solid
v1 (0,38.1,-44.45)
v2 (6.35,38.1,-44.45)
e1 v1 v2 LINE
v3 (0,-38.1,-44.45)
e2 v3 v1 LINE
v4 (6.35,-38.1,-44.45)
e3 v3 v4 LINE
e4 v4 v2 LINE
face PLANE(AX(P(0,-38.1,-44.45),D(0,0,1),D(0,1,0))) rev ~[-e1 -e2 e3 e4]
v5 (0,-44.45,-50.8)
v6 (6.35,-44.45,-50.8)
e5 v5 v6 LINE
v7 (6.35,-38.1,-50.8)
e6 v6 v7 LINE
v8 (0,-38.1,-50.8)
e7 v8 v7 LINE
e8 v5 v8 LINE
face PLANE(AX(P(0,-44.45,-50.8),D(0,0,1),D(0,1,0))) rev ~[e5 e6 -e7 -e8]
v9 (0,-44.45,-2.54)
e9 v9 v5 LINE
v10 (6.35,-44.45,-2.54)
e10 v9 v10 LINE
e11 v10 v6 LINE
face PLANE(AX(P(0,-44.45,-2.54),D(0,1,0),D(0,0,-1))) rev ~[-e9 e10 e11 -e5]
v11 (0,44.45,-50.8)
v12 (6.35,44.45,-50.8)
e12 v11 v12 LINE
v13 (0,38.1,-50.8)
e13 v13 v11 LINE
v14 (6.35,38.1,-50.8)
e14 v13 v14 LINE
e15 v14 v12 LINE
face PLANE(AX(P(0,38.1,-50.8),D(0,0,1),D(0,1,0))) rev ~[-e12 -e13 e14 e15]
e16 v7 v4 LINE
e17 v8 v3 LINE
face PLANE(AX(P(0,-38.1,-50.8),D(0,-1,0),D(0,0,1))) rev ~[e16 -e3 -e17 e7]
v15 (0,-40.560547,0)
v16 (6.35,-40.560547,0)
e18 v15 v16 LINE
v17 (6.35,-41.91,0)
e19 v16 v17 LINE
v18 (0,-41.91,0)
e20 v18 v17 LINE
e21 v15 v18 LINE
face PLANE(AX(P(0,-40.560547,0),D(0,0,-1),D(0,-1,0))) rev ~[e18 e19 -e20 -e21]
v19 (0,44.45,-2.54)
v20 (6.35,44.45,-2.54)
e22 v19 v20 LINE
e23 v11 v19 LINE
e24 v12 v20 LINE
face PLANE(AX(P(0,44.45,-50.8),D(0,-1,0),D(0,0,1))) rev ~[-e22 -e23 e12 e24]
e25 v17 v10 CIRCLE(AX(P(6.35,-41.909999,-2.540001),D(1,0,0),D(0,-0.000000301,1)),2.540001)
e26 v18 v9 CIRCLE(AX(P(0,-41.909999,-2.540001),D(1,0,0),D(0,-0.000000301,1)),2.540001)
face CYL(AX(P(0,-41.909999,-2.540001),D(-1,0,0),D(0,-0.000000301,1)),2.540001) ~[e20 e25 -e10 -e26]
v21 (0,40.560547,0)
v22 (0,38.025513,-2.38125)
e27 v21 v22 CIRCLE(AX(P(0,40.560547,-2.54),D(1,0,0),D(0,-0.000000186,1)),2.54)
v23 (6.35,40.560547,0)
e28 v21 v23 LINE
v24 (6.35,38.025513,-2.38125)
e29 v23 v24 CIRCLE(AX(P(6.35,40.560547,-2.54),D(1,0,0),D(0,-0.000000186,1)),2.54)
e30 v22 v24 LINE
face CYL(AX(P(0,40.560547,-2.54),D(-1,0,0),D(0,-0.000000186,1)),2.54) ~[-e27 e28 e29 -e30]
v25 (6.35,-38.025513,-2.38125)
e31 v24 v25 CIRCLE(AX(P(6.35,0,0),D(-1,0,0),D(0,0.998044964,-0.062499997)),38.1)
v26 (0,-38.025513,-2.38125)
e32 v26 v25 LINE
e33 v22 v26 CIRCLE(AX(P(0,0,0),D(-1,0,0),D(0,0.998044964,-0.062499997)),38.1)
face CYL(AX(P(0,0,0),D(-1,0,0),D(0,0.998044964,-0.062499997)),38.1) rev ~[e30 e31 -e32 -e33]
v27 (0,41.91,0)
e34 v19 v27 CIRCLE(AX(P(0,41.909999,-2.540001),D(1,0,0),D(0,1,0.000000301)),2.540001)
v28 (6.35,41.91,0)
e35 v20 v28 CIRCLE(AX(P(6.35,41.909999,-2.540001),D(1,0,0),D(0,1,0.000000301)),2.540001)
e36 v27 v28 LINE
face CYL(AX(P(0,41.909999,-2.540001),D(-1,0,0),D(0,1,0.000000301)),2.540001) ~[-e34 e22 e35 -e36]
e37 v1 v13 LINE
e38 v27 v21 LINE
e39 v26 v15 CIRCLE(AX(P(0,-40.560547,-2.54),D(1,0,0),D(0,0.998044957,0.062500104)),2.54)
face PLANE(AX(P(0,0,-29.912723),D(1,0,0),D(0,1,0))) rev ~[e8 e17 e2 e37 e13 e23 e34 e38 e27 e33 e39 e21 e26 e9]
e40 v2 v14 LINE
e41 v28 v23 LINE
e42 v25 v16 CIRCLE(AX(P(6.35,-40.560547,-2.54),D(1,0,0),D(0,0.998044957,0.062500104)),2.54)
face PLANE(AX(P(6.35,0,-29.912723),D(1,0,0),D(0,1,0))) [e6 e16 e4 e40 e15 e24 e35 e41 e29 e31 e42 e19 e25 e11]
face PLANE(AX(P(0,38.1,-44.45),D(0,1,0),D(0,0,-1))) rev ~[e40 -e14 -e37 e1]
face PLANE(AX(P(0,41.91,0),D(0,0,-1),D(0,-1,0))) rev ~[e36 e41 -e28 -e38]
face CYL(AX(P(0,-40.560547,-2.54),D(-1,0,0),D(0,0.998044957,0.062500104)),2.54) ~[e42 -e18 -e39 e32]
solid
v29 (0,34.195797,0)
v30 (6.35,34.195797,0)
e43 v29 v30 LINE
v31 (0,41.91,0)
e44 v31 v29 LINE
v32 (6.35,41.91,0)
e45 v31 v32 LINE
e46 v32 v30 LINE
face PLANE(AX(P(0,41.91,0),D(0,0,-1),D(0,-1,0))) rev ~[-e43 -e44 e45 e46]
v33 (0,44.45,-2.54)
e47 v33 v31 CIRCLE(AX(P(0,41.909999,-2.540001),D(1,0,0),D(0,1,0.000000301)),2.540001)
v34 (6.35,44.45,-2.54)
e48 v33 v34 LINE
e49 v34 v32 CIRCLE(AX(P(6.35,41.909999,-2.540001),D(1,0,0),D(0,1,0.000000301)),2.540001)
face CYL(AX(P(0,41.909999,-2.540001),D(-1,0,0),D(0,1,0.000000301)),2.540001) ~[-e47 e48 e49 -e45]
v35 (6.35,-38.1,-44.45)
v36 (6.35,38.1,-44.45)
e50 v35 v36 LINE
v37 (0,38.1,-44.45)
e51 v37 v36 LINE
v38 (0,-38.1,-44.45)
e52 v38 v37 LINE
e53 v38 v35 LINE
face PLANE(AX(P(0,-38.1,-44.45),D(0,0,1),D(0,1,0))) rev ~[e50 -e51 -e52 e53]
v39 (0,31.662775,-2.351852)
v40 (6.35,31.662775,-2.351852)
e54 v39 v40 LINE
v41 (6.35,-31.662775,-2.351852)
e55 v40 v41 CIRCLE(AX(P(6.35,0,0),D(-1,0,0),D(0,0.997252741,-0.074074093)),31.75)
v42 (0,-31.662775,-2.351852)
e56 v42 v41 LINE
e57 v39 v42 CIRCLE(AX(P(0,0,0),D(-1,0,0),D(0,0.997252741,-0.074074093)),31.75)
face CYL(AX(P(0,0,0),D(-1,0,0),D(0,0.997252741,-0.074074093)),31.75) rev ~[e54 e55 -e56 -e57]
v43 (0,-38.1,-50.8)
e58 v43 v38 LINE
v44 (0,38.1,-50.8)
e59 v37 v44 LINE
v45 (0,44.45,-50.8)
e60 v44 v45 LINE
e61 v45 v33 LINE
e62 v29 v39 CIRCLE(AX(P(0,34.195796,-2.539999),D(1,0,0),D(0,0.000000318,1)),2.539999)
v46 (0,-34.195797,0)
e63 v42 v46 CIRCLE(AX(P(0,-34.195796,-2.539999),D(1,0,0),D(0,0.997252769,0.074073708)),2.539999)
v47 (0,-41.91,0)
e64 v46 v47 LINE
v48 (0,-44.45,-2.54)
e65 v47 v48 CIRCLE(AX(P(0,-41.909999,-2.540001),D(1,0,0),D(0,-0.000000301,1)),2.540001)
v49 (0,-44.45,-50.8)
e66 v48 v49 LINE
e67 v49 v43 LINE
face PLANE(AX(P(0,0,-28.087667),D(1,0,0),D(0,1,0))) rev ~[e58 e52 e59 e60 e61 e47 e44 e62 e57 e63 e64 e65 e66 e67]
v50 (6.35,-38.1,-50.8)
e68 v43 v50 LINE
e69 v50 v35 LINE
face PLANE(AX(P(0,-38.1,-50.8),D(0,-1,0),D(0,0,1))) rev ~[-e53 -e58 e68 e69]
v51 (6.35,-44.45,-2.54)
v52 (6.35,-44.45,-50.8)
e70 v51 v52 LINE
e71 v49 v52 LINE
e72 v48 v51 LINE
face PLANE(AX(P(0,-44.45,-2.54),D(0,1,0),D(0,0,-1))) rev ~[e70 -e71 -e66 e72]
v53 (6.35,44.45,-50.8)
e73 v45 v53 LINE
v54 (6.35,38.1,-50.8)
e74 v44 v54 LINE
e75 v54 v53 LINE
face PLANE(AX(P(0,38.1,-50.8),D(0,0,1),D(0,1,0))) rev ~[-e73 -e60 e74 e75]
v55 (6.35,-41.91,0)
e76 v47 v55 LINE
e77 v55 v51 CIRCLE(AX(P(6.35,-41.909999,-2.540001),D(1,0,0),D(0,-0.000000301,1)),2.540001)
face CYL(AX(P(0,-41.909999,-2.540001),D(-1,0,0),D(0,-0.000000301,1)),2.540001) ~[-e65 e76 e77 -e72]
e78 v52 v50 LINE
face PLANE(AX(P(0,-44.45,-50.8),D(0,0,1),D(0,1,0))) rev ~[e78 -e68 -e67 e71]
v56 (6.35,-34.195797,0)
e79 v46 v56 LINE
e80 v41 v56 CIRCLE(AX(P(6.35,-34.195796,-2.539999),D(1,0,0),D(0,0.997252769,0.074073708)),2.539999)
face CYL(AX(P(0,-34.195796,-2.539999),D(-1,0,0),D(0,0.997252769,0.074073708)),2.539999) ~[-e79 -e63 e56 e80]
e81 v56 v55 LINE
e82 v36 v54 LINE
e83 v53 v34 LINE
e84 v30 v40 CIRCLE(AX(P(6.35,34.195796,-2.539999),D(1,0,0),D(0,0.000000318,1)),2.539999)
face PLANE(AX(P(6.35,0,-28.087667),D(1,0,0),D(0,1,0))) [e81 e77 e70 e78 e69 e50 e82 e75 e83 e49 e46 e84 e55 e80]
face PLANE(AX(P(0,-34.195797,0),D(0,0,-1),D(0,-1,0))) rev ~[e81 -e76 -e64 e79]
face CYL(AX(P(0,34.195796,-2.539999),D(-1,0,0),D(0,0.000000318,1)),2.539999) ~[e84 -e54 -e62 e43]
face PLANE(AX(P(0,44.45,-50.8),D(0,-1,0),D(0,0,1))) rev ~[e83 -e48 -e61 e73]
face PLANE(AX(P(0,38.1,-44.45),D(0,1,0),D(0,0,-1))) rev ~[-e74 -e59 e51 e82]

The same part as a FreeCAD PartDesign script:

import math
import FreeCAD as App
import Part
import Sketcher
Q = App.Units.Quantity

doc = App.newDocument("Part")
params = doc.addObject("Spreadsheet::Sheet", "Params")
for row, (alias, value) in enumerate([
    ("sketch1_radius", "0.1 in"),
    ("sketch1_radius2", "1.25 in"),
    ("sketch1_width", "0.25 in"),
    ("pad1_length", "0.25 in"),
    ("sketch2_radius", "0.1 in"),
    ("sketch2_width", "3 in"),
    ("sketch2_radius2", "1.25 in"),
    ("sketch2_height", "1.9 in"),
    ("sketch2_width2", "0.25 in"),
    ("pad2_length", "0.25 in"),
    ("sketch3_radius", "0.1 in"),
    ("sketch3_radius2", "1.5 in"),
    ("sketch3_width", "3 in"),
    ("sketch3_height", "1.9 in"),
    ("sketch3_width2", "0.25 in"),
    ("pad3_length", "0.25 in"),
], start=1):
    params.set(f"A{row}", alias)
    params.set(f"B{row}", "=" + value)
    params.setAlias(f"B{row}", alias)

body = doc.addObject("PartDesign::Body", "Body")

sketch1 = doc.addObject("Sketcher::SketchObject", "Sketch")
body.addObject(sketch1)
sketch1.AttachmentSupport = (doc.YZ_Plane, [""])
sketch1.MapMode = "FlatFace"
sketch1.addGeometry(Part.LineSegment(App.Vector(-34.1958, 0, 0), App.Vector(-41.91, 0, 0)), False)
sketch1.addGeometry(Part.ArcOfCircle(Part.Circle(App.Vector(-41.91, -2.54, 0), App.Vector(0, 0, 1), 2.54), math.radians(90), math.radians(180)), False)
sketch1.addGeometry(Part.LineSegment(App.Vector(-44.45, -2.54, 0), App.Vector(-44.45, -44.45, 0)), False)
sketch1.addGeometry(Part.LineSegment(App.Vector(-44.45, -44.45, 0), App.Vector(-44.4473, -44.45, 0)), False)
sketch1.addGeometry(Part.LineSegment(App.Vector(-44.4473, -44.45, 0), App.Vector(-44.4473, -50.8, 0)), False)
sketch1.addGeometry(Part.LineSegment(App.Vector(-44.4473, -50.8, 0), App.Vector(-38.0973, -50.8, 0)), False)
sketch1.addGeometry(Part.LineSegment(App.Vector(-38.0973, -50.8, 0), App.Vector(-38.0973, -44.45, 0)), False)
sketch1.addGeometry(Part.LineSegment(App.Vector(-38.0973, -44.45, 0), App.Vector(38.0862, -44.45, 0)), False)
sketch1.addGeometry(Part.LineSegment(App.Vector(38.0862, -44.45, 0), App.Vector(38.0862, -50.7773, 0)), False)
sketch1.addGeometry(Part.LineSegment(App.Vector(38.0862, -50.7773, 0), App.Vector(44.4362, -50.7773, 0)), False)
sketch1.addGeometry(Part.LineSegment(App.Vector(44.4362, -50.7773, 0), App.Vector(44.4362, -44.45, 0)), False)
sketch1.addGeometry(Part.LineSegment(App.Vector(44.4362, -44.45, 0), App.Vector(44.45, -44.45, 0)), False)
sketch1.addGeometry(Part.LineSegment(App.Vector(44.45, -44.45, 0), App.Vector(44.45, -2.54, 0)), False)
sketch1.addGeometry(Part.ArcOfCircle(Part.Circle(App.Vector(41.91, -2.54, 0), App.Vector(0, 0, 1), 2.54), math.radians(0), math.radians(90)), False)
sketch1.addGeometry(Part.LineSegment(App.Vector(41.91, 0, 0), App.Vector(34.1958, 0, 0)), False)
sketch1.addGeometry(Part.ArcOfCircle(Part.Circle(App.Vector(34.1958, -2.54, 0), App.Vector(0, 0, 1), 2.54), math.radians(90), math.radians(176)), False)
sketch1.addGeometry(Part.ArcOfCircle(Part.Circle(App.Vector(0, 0, 0), App.Vector(0, 0, 1), 31.75), math.radians(-176), math.radians(-4)), False)
sketch1.addGeometry(Part.ArcOfCircle(Part.Circle(App.Vector(-34.1958, -2.54, 0), App.Vector(0, 0, 1), 2.54), math.radians(4), math.radians(90)), False)
sketch1.addConstraint(Sketcher.Constraint("Tangent", 0, 2, 1, 1))
sketch1.addConstraint(Sketcher.Constraint("Tangent", 1, 2, 2, 1))
sketch1.addConstraint(Sketcher.Constraint("Coincident", 2, 2, 3, 1))
sketch1.addConstraint(Sketcher.Constraint("Coincident", 3, 2, 4, 1))
sketch1.addConstraint(Sketcher.Constraint("Coincident", 4, 2, 5, 1))
sketch1.addConstraint(Sketcher.Constraint("Coincident", 5, 2, 6, 1))
sketch1.addConstraint(Sketcher.Constraint("Coincident", 6, 2, 7, 1))
sketch1.addConstraint(Sketcher.Constraint("Coincident", 7, 2, 8, 1))
sketch1.addConstraint(Sketcher.Constraint("Coincident", 8, 2, 9, 1))
sketch1.addConstraint(Sketcher.Constraint("Coincident", 9, 2, 10, 1))
sketch1.addConstraint(Sketcher.Constraint("Coincident", 10, 2, 11, 1))
sketch1.addConstraint(Sketcher.Constraint("Coincident", 11, 2, 12, 1))
sketch1.addConstraint(Sketcher.Constraint("Tangent", 12, 2, 13, 1))
sketch1.addConstraint(Sketcher.Constraint("Tangent", 13, 2, 14, 1))
sketch1.addConstraint(Sketcher.Constraint("Tangent", 14, 2, 15, 1))
sketch1.addConstraint(Sketcher.Constraint("Tangent", 15, 2, 16, 2))
sketch1.addConstraint(Sketcher.Constraint("Tangent", 16, 1, 17, 1))
sketch1.addConstraint(Sketcher.Constraint("Tangent", 17, 2, 0, 1))
sketch1.addConstraint(Sketcher.Constraint("Horizontal", 0))
sketch1.addConstraint(Sketcher.Constraint("Vertical", 2))
sketch1.addConstraint(Sketcher.Constraint("Horizontal", 3))
sketch1.addConstraint(Sketcher.Constraint("Vertical", 4))
sketch1.addConstraint(Sketcher.Constraint("Horizontal", 5))
sketch1.addConstraint(Sketcher.Constraint("Vertical", 6))
sketch1.addConstraint(Sketcher.Constraint("Horizontal", 7))
sketch1.addConstraint(Sketcher.Constraint("Vertical", 8))
sketch1.addConstraint(Sketcher.Constraint("Horizontal", 9))
sketch1.addConstraint(Sketcher.Constraint("Vertical", 10))
sketch1.addConstraint(Sketcher.Constraint("Horizontal", 11))
sketch1.addConstraint(Sketcher.Constraint("Vertical", 12))
sketch1.addConstraint(Sketcher.Constraint("Horizontal", 14))
sketch1.addConstraint(Sketcher.Constraint("Coincident", 16, 3, -1, 1))
sketch1.addConstraint(Sketcher.Constraint("Equal", 1, 13))
sketch1.addConstraint(Sketcher.Constraint("Equal", 13, 15))
sketch1.addConstraint(Sketcher.Constraint("Equal", 15, 17))
sketch1.addConstraint(Sketcher.Constraint("Symmetric", 0, 2, 13, 2, -1, 1))
sketch1.addConstraint(Sketcher.Constraint("PointOnObject", 0, 2, -1))
sketch1.addConstraint(Sketcher.Constraint("Horizontal", 3, 2, 6, 2))
sketch1.addConstraint(Sketcher.Constraint("Horizontal", 7, 2, 10, 2))
sketch1.addConstraint(Sketcher.Constraint("Equal", 5, 9))
sketch1.addConstraint(Sketcher.Constraint("Equal", 9, 4))
sketch1.addConstraint(Sketcher.Constraint("Radius", 1, Q("0.1 in")))
sketch1.addConstraint(Sketcher.Constraint("Radius", 16, Q("1.25 in")))
sketch1.addConstraint(Sketcher.Constraint("DistanceY", 4, 2, -1, 1, Q("2 in")))
sketch1.addConstraint(Sketcher.Constraint("DistanceX", 5, 1, 5, 2, Q("0.25 in")))
sketch1.addConstraint(Sketcher.Constraint("DistanceX", 1, 3, 13, 3, Q("3.2999999 in")))
sketch1.addConstraint(Sketcher.Constraint("DistanceX", 3, 1, 3, 2, Q("0.002699 mm")))
sketch1.addConstraint(Sketcher.Constraint("DistanceY", 8, 2, 8, 1, Q("6.327279 mm")))
sketch1.addConstraint(Sketcher.Constraint("DistanceX", 7, 1, 7, 2, Q("76.183455 mm")))
sketch1.setExpression("Constraints[41]", "Params.sketch1_radius")
sketch1.setExpression("Constraints[42]", "Params.sketch1_radius2")
sketch1.setExpression("Constraints[44]", "Params.sketch1_width")
pad1 = doc.addObject("PartDesign::Pad", "Pad")
body.addObject(pad1)
pad1.Profile = sketch1
pad1.setExpression("Length", "Params.pad1_length")
body2 = doc.addObject("PartDesign::Body", "Body001")

sketch2 = doc.addObject("Sketcher::SketchObject", "Sketch001")
body2.addObject(sketch2)
sketch2.AttachmentSupport = (doc.getObject("YZ_Plane001"), [""])
sketch2.MapMode = "FlatFace"
sketch2.addGeometry(Part.LineSegment(App.Vector(-34.2, 0, 0), App.Vector(-41.9, 0, 0)), False)
sketch2.addGeometry(Part.ArcOfCircle(Part.Circle(App.Vector(-41.9, -2.5, 0), App.Vector(0, 0, 1), 2.5), math.radians(90), math.radians(180)), False)
sketch2.addGeometry(Part.LineSegment(App.Vector(-44.5, -2.5, 0), App.Vector(-44.5, -50.8, 0)), False)
sketch2.addGeometry(Part.LineSegment(App.Vector(-44.5, -50.8, 0), App.Vector(-38.1, -50.8, 0)), False)
sketch2.addGeometry(Part.LineSegment(App.Vector(-38.1, -50.8, 0), App.Vector(-38.1, -44.5, 0)), False)
sketch2.addGeometry(Part.LineSegment(App.Vector(-38.1, -44.5, 0), App.Vector(38.1, -44.5, 0)), False)
sketch2.addGeometry(Part.LineSegment(App.Vector(38.1, -44.5, 0), App.Vector(38.1, -50.8, 0)), False)
sketch2.addGeometry(Part.LineSegment(App.Vector(38.1, -50.8, 0), App.Vector(44.5, -50.8, 0)), False)
sketch2.addGeometry(Part.LineSegment(App.Vector(44.5, -50.8, 0), App.Vector(44.5, -2.5, 0)), False)
sketch2.addGeometry(Part.ArcOfCircle(Part.Circle(App.Vector(41.9, -2.5, 0), App.Vector(0, 0, 1), 2.5), math.radians(0), math.radians(90)), False)
sketch2.addGeometry(Part.LineSegment(App.Vector(41.9, 0, 0), App.Vector(34.2, 0, 0)), False)
sketch2.addGeometry(Part.ArcOfCircle(Part.Circle(App.Vector(34.2, -2.5, 0), App.Vector(0, 0, 1), 2.5), math.radians(90), math.radians(176)), False)
sketch2.addGeometry(Part.ArcOfCircle(Part.Circle(App.Vector(0, 0, 0), App.Vector(0, 0, 1), 31.8), math.radians(-176), math.radians(-4)), False)
sketch2.addGeometry(Part.ArcOfCircle(Part.Circle(App.Vector(-34.2, -2.5, 0), App.Vector(0, 0, 1), 2.5), math.radians(4), math.radians(90)), False)
sketch2.addConstraint(Sketcher.Constraint("Tangent", 0, 2, 1, 1))
sketch2.addConstraint(Sketcher.Constraint("Tangent", 1, 2, 2, 1))
sketch2.addConstraint(Sketcher.Constraint("Coincident", 2, 2, 3, 1))
sketch2.addConstraint(Sketcher.Constraint("Coincident", 3, 2, 4, 1))
sketch2.addConstraint(Sketcher.Constraint("Coincident", 4, 2, 5, 1))
sketch2.addConstraint(Sketcher.Constraint("Coincident", 5, 2, 6, 1))
sketch2.addConstraint(Sketcher.Constraint("Coincident", 6, 2, 7, 1))
sketch2.addConstraint(Sketcher.Constraint("Coincident", 7, 2, 8, 1))
sketch2.addConstraint(Sketcher.Constraint("Tangent", 8, 2, 9, 1))
sketch2.addConstraint(Sketcher.Constraint("Tangent", 9, 2, 10, 1))
sketch2.addConstraint(Sketcher.Constraint("Tangent", 10, 2, 11, 1))
sketch2.addConstraint(Sketcher.Constraint("Tangent", 11, 2, 12, 2))
sketch2.addConstraint(Sketcher.Constraint("Tangent", 12, 1, 13, 1))
sketch2.addConstraint(Sketcher.Constraint("Tangent", 13, 2, 0, 1))
sketch2.addConstraint(Sketcher.Constraint("Horizontal", 0))
sketch2.addConstraint(Sketcher.Constraint("Vertical", 2))
sketch2.addConstraint(Sketcher.Constraint("Horizontal", 3))
sketch2.addConstraint(Sketcher.Constraint("Vertical", 4))
sketch2.addConstraint(Sketcher.Constraint("Horizontal", 5))
sketch2.addConstraint(Sketcher.Constraint("Vertical", 6))
sketch2.addConstraint(Sketcher.Constraint("Horizontal", 7))
sketch2.addConstraint(Sketcher.Constraint("Vertical", 8))
sketch2.addConstraint(Sketcher.Constraint("Horizontal", 10))
sketch2.addConstraint(Sketcher.Constraint("Coincident", 12, 3, -1, 1))
sketch2.addConstraint(Sketcher.Constraint("Equal", 1, 9))
sketch2.addConstraint(Sketcher.Constraint("Equal", 9, 11))
sketch2.addConstraint(Sketcher.Constraint("Equal", 11, 13))
sketch2.addConstraint(Sketcher.Constraint("Symmetric", 0, 2, 9, 2, -1, 1))
sketch2.addConstraint(Sketcher.Constraint("Symmetric", 3, 2, 6, 2, -2))
sketch2.addConstraint(Sketcher.Constraint("PointOnObject", 0, 2, -1))
sketch2.addConstraint(Sketcher.Constraint("Equal", 7, 4))
sketch2.addConstraint(Sketcher.Constraint("Radius", 1, Q("0.1 in")))
sketch2.addConstraint(Sketcher.Constraint("DistanceX", 5, 1, 5, 2, Q("3 in")))
sketch2.addConstraint(Sketcher.Constraint("Radius", 12, Q("1.25 in")))
sketch2.addConstraint(Sketcher.Constraint("DistanceY", 2, 2, 2, 1, Q("1.9 in")))
sketch2.addConstraint(Sketcher.Constraint("DistanceX", 3, 1, 3, 2, Q("0.25 in")))
sketch2.setExpression("Constraints[31]", "Params.sketch2_radius")
sketch2.setExpression("Constraints[32]", "Params.sketch2_width")
sketch2.setExpression("Constraints[33]", "Params.sketch2_radius2")
sketch2.setExpression("Constraints[34]", "Params.sketch2_height")
sketch2.setExpression("Constraints[35]", "Params.sketch2_width2")
pad2 = doc.addObject("PartDesign::Pad", "Pad001")
body2.addObject(pad2)
pad2.Profile = sketch2
pad2.setExpression("Length", "Params.pad2_length")
body3 = doc.addObject("PartDesign::Body", "Body002")

sketch3 = doc.addObject("Sketcher::SketchObject", "Sketch002")
body3.addObject(sketch3)
sketch3.AttachmentSupport = (doc.getObject("YZ_Plane002"), [""])
sketch3.MapMode = "FlatFace"
sketch3.addGeometry(Part.LineSegment(App.Vector(-40.6, 0, 0), App.Vector(-41.9, 0, 0)), False)
sketch3.addGeometry(Part.ArcOfCircle(Part.Circle(App.Vector(-41.9, -2.5, 0), App.Vector(0, 0, 1), 2.5), math.radians(90), math.radians(180)), False)
sketch3.addGeometry(Part.LineSegment(App.Vector(-44.5, -2.5, 0), App.Vector(-44.5, -50.8, 0)), False)
sketch3.addGeometry(Part.LineSegment(App.Vector(-44.5, -50.8, 0), App.Vector(-38.1, -50.8, 0)), False)
sketch3.addGeometry(Part.LineSegment(App.Vector(-38.1, -50.8, 0), App.Vector(-38.1, -44.5, 0)), False)
sketch3.addGeometry(Part.LineSegment(App.Vector(-38.1, -44.5, 0), App.Vector(38.1, -44.5, 0)), False)
sketch3.addGeometry(Part.LineSegment(App.Vector(38.1, -44.5, 0), App.Vector(38.1, -50.8, 0)), False)
sketch3.addGeometry(Part.LineSegment(App.Vector(38.1, -50.8, 0), App.Vector(44.5, -50.8, 0)), False)
sketch3.addGeometry(Part.LineSegment(App.Vector(44.5, -50.8, 0), App.Vector(44.5, -2.5, 0)), False)
sketch3.addGeometry(Part.ArcOfCircle(Part.Circle(App.Vector(41.9, -2.5, 0), App.Vector(0, 0, 1), 2.5), math.radians(0), math.radians(90)), False)
sketch3.addGeometry(Part.LineSegment(App.Vector(41.9, 0, 0), App.Vector(40.6, 0, 0)), False)
sketch3.addGeometry(Part.ArcOfCircle(Part.Circle(App.Vector(40.6, -2.5, 0), App.Vector(0, 0, 1), 2.5), math.radians(90), math.radians(176)), False)
sketch3.addGeometry(Part.ArcOfCircle(Part.Circle(App.Vector(0, 0, 0), App.Vector(0, 0, 1), 38.1), math.radians(-176), math.radians(-4)), False)
sketch3.addGeometry(Part.ArcOfCircle(Part.Circle(App.Vector(-40.6, -2.5, 0), App.Vector(0, 0, 1), 2.5), math.radians(4), math.radians(90)), False)
sketch3.addConstraint(Sketcher.Constraint("Tangent", 0, 2, 1, 1))
sketch3.addConstraint(Sketcher.Constraint("Tangent", 1, 2, 2, 1))
sketch3.addConstraint(Sketcher.Constraint("Coincident", 2, 2, 3, 1))
sketch3.addConstraint(Sketcher.Constraint("Coincident", 3, 2, 4, 1))
sketch3.addConstraint(Sketcher.Constraint("Coincident", 4, 2, 5, 1))
sketch3.addConstraint(Sketcher.Constraint("Coincident", 5, 2, 6, 1))
sketch3.addConstraint(Sketcher.Constraint("Coincident", 6, 2, 7, 1))
sketch3.addConstraint(Sketcher.Constraint("Coincident", 7, 2, 8, 1))
sketch3.addConstraint(Sketcher.Constraint("Tangent", 8, 2, 9, 1))
sketch3.addConstraint(Sketcher.Constraint("Tangent", 9, 2, 10, 1))
sketch3.addConstraint(Sketcher.Constraint("Tangent", 10, 2, 11, 1))
sketch3.addConstraint(Sketcher.Constraint("Tangent", 11, 2, 12, 2))
sketch3.addConstraint(Sketcher.Constraint("Tangent", 12, 1, 13, 1))
sketch3.addConstraint(Sketcher.Constraint("Tangent", 13, 2, 0, 1))
sketch3.addConstraint(Sketcher.Constraint("Horizontal", 0))
sketch3.addConstraint(Sketcher.Constraint("Vertical", 2))
sketch3.addConstraint(Sketcher.Constraint("Horizontal", 3))
sketch3.addConstraint(Sketcher.Constraint("Vertical", 4))
sketch3.addConstraint(Sketcher.Constraint("Horizontal", 5))
sketch3.addConstraint(Sketcher.Constraint("Vertical", 6))
sketch3.addConstraint(Sketcher.Constraint("Horizontal", 7))
sketch3.addConstraint(Sketcher.Constraint("Vertical", 8))
sketch3.addConstraint(Sketcher.Constraint("Horizontal", 10))
sketch3.addConstraint(Sketcher.Constraint("Coincident", 12, 3, -1, 1))
sketch3.addConstraint(Sketcher.Constraint("Equal", 1, 9))
sketch3.addConstraint(Sketcher.Constraint("Equal", 9, 11))
sketch3.addConstraint(Sketcher.Constraint("Equal", 11, 13))
sketch3.addConstraint(Sketcher.Constraint("Symmetric", 0, 2, 9, 2, -1, 1))
sketch3.addConstraint(Sketcher.Constraint("Symmetric", 3, 2, 6, 2, -2))
sketch3.addConstraint(Sketcher.Constraint("PointOnObject", 0, 2, -1))
sketch3.addConstraint(Sketcher.Constraint("Equal", 7, 4))
sketch3.addConstraint(Sketcher.Constraint("Radius", 1, Q("0.1 in")))
sketch3.addConstraint(Sketcher.Constraint("Radius", 12, Q("1.5 in")))
sketch3.addConstraint(Sketcher.Constraint("DistanceX", 5, 1, 5, 2, Q("3 in")))
sketch3.addConstraint(Sketcher.Constraint("DistanceY", 2, 2, 2, 1, Q("1.9 in")))
sketch3.addConstraint(Sketcher.Constraint("DistanceX", 3, 1, 3, 2, Q("0.25 in")))
sketch3.setExpression("Constraints[31]", "Params.sketch3_radius")
sketch3.setExpression("Constraints[32]", "Params.sketch3_radius2")
sketch3.setExpression("Constraints[33]", "Params.sketch3_width")
sketch3.setExpression("Constraints[34]", "Params.sketch3_height")
sketch3.setExpression("Constraints[35]", "Params.sketch3_width2")
pad3 = doc.addObject("PartDesign::Pad", "Pad002")
body3.addObject(pad3)
pad3.Profile = sketch3
pad3.setExpression("Length", "Params.pad3_length")
body.Visibility = False

doc.recompute()
